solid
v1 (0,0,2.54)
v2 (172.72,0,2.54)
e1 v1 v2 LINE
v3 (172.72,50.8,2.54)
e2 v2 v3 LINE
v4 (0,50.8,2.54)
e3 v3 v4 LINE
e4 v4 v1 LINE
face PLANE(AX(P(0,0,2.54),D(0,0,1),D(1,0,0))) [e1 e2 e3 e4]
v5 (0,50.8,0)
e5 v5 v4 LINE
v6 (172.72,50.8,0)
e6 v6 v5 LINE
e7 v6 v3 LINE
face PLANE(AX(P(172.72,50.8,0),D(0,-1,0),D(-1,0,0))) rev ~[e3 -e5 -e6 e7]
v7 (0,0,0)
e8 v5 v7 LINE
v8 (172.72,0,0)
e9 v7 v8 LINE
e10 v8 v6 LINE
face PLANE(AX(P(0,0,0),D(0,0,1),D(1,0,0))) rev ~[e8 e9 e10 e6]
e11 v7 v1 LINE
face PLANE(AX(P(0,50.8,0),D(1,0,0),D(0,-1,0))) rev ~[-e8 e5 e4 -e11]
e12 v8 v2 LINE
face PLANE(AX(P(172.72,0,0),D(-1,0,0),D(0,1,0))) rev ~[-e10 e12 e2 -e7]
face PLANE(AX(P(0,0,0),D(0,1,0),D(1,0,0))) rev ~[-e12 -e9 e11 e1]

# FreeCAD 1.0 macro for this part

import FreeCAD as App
import Part
import Sketcher

V = App.Vector
Q = App.Units.Quantity

doc = App.newDocument("Part")
body = doc.addObject("PartDesign::Body", "Body")

# Sketch on XY plane
sketch1 = body.newObject("Sketcher::SketchObject", "Sketch")
sketch1.AttachmentSupport = (doc.getObject("XY_Plane"), [""])
sketch1.MapMode = "FlatFace"
sketch1.addGeometry([
    Part.LineSegment(V(0, 51, 0), V(0, 0, 0)),
    Part.LineSegment(V(0, 0, 0), V(173, 0, 0)),
    Part.LineSegment(V(173, 0, 0), V(173, 51, 0)),
    Part.LineSegment(V(173, 51, 0), V(0, 51, 0)),
], False)
sketch1.addConstraint([
    Sketcher.Constraint("Coincident", 0, 2, 1, 1),
    Sketcher.Constraint("Coincident", 1, 2, 2, 1),
    Sketcher.Constraint("Coincident", 2, 2, 3, 1),
    Sketcher.Constraint("Coincident", 3, 2, 0, 1),
    Sketcher.Constraint("Vertical", 0),
    Sketcher.Constraint("Horizontal", 1),
    Sketcher.Constraint("Vertical", 2),
    Sketcher.Constraint("Horizontal", 3),
    Sketcher.Constraint("Coincident", 0, 2, -1, 1),
    Sketcher.Constraint("DistanceY", 0, 2, 0, 1, Q("2 in")),
    Sketcher.Constraint("DistanceX", 1, 1, 1, 2, Q("6.8 in")),
])
pad1 = body.newObject("PartDesign::Pad", "Pad")
pad1.Profile = sketch1
pad1.Length = Q("0.1 in")

doc.recompute()
